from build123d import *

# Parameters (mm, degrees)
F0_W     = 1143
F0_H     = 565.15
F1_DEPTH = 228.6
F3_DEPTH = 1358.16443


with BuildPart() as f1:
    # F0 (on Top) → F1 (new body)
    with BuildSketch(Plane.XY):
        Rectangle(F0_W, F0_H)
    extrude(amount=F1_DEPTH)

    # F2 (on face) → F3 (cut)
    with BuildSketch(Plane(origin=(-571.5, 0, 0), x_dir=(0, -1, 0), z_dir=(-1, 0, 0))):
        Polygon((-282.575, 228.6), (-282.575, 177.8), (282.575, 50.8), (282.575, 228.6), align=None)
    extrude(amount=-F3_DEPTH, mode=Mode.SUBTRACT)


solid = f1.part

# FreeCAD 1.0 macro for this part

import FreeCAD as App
import Part
import Sketcher

V = App.Vector
Q = App.Units.Quantity

doc = App.newDocument("Part")
params = doc.addObject("Spreadsheet::Sheet", "Params")
for row, (alias, value) in enumerate([
    ("sketch1_width", "45 in"),
    ("sketch1_height", "22.25 in"),
    ("pad1_length", "9 in"),
    ("sketch2_height", "2 in"),
    ("sketch2_height2", "7 in"),
    ("sketch2_width", "22.25 in"),
    ("pocket1_length", "1358.16443 mm"),
], start=1):
    params.set(f"A{row}", alias)
    params.set(f"B{row}", "=" + value)
    params.setAlias(f"B{row}", alias)

body = doc.addObject("PartDesign::Body", "Body")

sketch1 = body.newObject("Sketcher::SketchObject", "Sketch")
sketch1.AttachmentSupport = (doc.getObject("XY_Plane"), [""])
sketch1.MapMode = "FlatFace"
sketch1.addGeometry([
    Part.LineSegment(V(-572, 283, 0), V(-572, -283, 0)),
    Part.LineSegment(V(-572, -283, 0), V(572, -283, 0)),
    Part.LineSegment(V(572, -283, 0), V(572, 283, 0)),
    Part.LineSegment(V(572, 283, 0), V(-572, 283, 0)),
], False)
sketch1.addConstraint([
    Sketcher.Constraint("Coincident", 0, 2, 1, 1),
    Sketcher.Constraint("Coincident", 1, 2, 2, 1),
    Sketcher.Constraint("Coincident", 2, 2, 3, 1),
    Sketcher.Constraint("Coincident", 3, 2, 0, 1),
    Sketcher.Constraint("Vertical", 0),
    Sketcher.Constraint("Horizontal", 1),
    Sketcher.Constraint("Vertical", 2),
    Sketcher.Constraint("Horizontal", 3),
    Sketcher.Constraint("Symmetric", 0, 2, 2, 2, -1, 1),
    Sketcher.Constraint("DistanceX", 1, 1, 1, 2, Q("45 in")),
    Sketcher.Constraint("DistanceY", 0, 2, 0, 1, Q("22.25 in")),
])
sketch1.setExpression("Constraints[9]", "Params.sketch1_width")
sketch1.setExpression("Constraints[10]", "Params.sketch1_height")
pad1 = body.newObject("PartDesign::Pad", "Pad")
pad1.Profile = sketch1
pad1.setExpression("Length", "Params.pad1_length")

sketch2 = body.newObject("Sketcher::SketchObject", "Sketch001")
sketch2.AttachmentSupport = (doc.getObject("YZ_Plane"), [""])
sketch2.MapMode = "FlatFace"
sketch2.AttachmentOffset = App.Placement(V(0, 0, -22.5 * 25.4), App.Rotation())
sketch2.addGeometry([
    Part.LineSegment(V(283, 229, 0), V(283, 178, 0)),
    Part.LineSegment(V(283, 178, 0), V(-283, 51, 0)),
    Part.LineSegment(V(-283, 51, 0), V(-283, 229, 0)),
    Part.LineSegment(V(-283, 229, 0), V(283, 229, 0)),
], False)
sketch2.addConstraint([
    Sketcher.Constraint("Coincident", 0, 2, 1, 1),
    Sketcher.Constraint("Coincident", 1, 2, 2, 1),
    Sketcher.Constraint("Coincident", 2, 2, 3, 1),
    Sketcher.Constraint("Coincident", 3, 2, 0, 1),
    Sketcher.Constraint("Vertical", 0),
    Sketcher.Constraint("Vertical", 2),
    Sketcher.Constraint("Horizontal", 3),
    Sketcher.Constraint("DistanceY", 0, 2, 0, 1, Q("2 in")),
    Sketcher.Constraint("DistanceY", 2, 1, 2, 2, Q("7 in")),
    Sketcher.Constraint("DistanceY", -1, 1, 0, 2, Q("7 in")),
    Sketcher.Constraint("DistanceX", 3, 1, 3, 2, Q("22.25 in")),
    Sketcher.Constraint("DistanceX", -1, 1, 0, 2, Q("11.125 in")),
])
sketch2.setExpression("Constraints[7]", "Params.sketch2_height")
sketch2.setExpression("Constraints[8]", "Params.sketch2_height2")
sketch2.setExpression("Constraints[10]", "Params.sketch2_width")
pocket1 = body.newObject("PartDesign::Pocket", "Pocket")
pocket1.Profile = sketch2
pocket1.setExpression("Length", "Params.pocket1_length")
pocket1.Reversed = True

doc.recompute()
